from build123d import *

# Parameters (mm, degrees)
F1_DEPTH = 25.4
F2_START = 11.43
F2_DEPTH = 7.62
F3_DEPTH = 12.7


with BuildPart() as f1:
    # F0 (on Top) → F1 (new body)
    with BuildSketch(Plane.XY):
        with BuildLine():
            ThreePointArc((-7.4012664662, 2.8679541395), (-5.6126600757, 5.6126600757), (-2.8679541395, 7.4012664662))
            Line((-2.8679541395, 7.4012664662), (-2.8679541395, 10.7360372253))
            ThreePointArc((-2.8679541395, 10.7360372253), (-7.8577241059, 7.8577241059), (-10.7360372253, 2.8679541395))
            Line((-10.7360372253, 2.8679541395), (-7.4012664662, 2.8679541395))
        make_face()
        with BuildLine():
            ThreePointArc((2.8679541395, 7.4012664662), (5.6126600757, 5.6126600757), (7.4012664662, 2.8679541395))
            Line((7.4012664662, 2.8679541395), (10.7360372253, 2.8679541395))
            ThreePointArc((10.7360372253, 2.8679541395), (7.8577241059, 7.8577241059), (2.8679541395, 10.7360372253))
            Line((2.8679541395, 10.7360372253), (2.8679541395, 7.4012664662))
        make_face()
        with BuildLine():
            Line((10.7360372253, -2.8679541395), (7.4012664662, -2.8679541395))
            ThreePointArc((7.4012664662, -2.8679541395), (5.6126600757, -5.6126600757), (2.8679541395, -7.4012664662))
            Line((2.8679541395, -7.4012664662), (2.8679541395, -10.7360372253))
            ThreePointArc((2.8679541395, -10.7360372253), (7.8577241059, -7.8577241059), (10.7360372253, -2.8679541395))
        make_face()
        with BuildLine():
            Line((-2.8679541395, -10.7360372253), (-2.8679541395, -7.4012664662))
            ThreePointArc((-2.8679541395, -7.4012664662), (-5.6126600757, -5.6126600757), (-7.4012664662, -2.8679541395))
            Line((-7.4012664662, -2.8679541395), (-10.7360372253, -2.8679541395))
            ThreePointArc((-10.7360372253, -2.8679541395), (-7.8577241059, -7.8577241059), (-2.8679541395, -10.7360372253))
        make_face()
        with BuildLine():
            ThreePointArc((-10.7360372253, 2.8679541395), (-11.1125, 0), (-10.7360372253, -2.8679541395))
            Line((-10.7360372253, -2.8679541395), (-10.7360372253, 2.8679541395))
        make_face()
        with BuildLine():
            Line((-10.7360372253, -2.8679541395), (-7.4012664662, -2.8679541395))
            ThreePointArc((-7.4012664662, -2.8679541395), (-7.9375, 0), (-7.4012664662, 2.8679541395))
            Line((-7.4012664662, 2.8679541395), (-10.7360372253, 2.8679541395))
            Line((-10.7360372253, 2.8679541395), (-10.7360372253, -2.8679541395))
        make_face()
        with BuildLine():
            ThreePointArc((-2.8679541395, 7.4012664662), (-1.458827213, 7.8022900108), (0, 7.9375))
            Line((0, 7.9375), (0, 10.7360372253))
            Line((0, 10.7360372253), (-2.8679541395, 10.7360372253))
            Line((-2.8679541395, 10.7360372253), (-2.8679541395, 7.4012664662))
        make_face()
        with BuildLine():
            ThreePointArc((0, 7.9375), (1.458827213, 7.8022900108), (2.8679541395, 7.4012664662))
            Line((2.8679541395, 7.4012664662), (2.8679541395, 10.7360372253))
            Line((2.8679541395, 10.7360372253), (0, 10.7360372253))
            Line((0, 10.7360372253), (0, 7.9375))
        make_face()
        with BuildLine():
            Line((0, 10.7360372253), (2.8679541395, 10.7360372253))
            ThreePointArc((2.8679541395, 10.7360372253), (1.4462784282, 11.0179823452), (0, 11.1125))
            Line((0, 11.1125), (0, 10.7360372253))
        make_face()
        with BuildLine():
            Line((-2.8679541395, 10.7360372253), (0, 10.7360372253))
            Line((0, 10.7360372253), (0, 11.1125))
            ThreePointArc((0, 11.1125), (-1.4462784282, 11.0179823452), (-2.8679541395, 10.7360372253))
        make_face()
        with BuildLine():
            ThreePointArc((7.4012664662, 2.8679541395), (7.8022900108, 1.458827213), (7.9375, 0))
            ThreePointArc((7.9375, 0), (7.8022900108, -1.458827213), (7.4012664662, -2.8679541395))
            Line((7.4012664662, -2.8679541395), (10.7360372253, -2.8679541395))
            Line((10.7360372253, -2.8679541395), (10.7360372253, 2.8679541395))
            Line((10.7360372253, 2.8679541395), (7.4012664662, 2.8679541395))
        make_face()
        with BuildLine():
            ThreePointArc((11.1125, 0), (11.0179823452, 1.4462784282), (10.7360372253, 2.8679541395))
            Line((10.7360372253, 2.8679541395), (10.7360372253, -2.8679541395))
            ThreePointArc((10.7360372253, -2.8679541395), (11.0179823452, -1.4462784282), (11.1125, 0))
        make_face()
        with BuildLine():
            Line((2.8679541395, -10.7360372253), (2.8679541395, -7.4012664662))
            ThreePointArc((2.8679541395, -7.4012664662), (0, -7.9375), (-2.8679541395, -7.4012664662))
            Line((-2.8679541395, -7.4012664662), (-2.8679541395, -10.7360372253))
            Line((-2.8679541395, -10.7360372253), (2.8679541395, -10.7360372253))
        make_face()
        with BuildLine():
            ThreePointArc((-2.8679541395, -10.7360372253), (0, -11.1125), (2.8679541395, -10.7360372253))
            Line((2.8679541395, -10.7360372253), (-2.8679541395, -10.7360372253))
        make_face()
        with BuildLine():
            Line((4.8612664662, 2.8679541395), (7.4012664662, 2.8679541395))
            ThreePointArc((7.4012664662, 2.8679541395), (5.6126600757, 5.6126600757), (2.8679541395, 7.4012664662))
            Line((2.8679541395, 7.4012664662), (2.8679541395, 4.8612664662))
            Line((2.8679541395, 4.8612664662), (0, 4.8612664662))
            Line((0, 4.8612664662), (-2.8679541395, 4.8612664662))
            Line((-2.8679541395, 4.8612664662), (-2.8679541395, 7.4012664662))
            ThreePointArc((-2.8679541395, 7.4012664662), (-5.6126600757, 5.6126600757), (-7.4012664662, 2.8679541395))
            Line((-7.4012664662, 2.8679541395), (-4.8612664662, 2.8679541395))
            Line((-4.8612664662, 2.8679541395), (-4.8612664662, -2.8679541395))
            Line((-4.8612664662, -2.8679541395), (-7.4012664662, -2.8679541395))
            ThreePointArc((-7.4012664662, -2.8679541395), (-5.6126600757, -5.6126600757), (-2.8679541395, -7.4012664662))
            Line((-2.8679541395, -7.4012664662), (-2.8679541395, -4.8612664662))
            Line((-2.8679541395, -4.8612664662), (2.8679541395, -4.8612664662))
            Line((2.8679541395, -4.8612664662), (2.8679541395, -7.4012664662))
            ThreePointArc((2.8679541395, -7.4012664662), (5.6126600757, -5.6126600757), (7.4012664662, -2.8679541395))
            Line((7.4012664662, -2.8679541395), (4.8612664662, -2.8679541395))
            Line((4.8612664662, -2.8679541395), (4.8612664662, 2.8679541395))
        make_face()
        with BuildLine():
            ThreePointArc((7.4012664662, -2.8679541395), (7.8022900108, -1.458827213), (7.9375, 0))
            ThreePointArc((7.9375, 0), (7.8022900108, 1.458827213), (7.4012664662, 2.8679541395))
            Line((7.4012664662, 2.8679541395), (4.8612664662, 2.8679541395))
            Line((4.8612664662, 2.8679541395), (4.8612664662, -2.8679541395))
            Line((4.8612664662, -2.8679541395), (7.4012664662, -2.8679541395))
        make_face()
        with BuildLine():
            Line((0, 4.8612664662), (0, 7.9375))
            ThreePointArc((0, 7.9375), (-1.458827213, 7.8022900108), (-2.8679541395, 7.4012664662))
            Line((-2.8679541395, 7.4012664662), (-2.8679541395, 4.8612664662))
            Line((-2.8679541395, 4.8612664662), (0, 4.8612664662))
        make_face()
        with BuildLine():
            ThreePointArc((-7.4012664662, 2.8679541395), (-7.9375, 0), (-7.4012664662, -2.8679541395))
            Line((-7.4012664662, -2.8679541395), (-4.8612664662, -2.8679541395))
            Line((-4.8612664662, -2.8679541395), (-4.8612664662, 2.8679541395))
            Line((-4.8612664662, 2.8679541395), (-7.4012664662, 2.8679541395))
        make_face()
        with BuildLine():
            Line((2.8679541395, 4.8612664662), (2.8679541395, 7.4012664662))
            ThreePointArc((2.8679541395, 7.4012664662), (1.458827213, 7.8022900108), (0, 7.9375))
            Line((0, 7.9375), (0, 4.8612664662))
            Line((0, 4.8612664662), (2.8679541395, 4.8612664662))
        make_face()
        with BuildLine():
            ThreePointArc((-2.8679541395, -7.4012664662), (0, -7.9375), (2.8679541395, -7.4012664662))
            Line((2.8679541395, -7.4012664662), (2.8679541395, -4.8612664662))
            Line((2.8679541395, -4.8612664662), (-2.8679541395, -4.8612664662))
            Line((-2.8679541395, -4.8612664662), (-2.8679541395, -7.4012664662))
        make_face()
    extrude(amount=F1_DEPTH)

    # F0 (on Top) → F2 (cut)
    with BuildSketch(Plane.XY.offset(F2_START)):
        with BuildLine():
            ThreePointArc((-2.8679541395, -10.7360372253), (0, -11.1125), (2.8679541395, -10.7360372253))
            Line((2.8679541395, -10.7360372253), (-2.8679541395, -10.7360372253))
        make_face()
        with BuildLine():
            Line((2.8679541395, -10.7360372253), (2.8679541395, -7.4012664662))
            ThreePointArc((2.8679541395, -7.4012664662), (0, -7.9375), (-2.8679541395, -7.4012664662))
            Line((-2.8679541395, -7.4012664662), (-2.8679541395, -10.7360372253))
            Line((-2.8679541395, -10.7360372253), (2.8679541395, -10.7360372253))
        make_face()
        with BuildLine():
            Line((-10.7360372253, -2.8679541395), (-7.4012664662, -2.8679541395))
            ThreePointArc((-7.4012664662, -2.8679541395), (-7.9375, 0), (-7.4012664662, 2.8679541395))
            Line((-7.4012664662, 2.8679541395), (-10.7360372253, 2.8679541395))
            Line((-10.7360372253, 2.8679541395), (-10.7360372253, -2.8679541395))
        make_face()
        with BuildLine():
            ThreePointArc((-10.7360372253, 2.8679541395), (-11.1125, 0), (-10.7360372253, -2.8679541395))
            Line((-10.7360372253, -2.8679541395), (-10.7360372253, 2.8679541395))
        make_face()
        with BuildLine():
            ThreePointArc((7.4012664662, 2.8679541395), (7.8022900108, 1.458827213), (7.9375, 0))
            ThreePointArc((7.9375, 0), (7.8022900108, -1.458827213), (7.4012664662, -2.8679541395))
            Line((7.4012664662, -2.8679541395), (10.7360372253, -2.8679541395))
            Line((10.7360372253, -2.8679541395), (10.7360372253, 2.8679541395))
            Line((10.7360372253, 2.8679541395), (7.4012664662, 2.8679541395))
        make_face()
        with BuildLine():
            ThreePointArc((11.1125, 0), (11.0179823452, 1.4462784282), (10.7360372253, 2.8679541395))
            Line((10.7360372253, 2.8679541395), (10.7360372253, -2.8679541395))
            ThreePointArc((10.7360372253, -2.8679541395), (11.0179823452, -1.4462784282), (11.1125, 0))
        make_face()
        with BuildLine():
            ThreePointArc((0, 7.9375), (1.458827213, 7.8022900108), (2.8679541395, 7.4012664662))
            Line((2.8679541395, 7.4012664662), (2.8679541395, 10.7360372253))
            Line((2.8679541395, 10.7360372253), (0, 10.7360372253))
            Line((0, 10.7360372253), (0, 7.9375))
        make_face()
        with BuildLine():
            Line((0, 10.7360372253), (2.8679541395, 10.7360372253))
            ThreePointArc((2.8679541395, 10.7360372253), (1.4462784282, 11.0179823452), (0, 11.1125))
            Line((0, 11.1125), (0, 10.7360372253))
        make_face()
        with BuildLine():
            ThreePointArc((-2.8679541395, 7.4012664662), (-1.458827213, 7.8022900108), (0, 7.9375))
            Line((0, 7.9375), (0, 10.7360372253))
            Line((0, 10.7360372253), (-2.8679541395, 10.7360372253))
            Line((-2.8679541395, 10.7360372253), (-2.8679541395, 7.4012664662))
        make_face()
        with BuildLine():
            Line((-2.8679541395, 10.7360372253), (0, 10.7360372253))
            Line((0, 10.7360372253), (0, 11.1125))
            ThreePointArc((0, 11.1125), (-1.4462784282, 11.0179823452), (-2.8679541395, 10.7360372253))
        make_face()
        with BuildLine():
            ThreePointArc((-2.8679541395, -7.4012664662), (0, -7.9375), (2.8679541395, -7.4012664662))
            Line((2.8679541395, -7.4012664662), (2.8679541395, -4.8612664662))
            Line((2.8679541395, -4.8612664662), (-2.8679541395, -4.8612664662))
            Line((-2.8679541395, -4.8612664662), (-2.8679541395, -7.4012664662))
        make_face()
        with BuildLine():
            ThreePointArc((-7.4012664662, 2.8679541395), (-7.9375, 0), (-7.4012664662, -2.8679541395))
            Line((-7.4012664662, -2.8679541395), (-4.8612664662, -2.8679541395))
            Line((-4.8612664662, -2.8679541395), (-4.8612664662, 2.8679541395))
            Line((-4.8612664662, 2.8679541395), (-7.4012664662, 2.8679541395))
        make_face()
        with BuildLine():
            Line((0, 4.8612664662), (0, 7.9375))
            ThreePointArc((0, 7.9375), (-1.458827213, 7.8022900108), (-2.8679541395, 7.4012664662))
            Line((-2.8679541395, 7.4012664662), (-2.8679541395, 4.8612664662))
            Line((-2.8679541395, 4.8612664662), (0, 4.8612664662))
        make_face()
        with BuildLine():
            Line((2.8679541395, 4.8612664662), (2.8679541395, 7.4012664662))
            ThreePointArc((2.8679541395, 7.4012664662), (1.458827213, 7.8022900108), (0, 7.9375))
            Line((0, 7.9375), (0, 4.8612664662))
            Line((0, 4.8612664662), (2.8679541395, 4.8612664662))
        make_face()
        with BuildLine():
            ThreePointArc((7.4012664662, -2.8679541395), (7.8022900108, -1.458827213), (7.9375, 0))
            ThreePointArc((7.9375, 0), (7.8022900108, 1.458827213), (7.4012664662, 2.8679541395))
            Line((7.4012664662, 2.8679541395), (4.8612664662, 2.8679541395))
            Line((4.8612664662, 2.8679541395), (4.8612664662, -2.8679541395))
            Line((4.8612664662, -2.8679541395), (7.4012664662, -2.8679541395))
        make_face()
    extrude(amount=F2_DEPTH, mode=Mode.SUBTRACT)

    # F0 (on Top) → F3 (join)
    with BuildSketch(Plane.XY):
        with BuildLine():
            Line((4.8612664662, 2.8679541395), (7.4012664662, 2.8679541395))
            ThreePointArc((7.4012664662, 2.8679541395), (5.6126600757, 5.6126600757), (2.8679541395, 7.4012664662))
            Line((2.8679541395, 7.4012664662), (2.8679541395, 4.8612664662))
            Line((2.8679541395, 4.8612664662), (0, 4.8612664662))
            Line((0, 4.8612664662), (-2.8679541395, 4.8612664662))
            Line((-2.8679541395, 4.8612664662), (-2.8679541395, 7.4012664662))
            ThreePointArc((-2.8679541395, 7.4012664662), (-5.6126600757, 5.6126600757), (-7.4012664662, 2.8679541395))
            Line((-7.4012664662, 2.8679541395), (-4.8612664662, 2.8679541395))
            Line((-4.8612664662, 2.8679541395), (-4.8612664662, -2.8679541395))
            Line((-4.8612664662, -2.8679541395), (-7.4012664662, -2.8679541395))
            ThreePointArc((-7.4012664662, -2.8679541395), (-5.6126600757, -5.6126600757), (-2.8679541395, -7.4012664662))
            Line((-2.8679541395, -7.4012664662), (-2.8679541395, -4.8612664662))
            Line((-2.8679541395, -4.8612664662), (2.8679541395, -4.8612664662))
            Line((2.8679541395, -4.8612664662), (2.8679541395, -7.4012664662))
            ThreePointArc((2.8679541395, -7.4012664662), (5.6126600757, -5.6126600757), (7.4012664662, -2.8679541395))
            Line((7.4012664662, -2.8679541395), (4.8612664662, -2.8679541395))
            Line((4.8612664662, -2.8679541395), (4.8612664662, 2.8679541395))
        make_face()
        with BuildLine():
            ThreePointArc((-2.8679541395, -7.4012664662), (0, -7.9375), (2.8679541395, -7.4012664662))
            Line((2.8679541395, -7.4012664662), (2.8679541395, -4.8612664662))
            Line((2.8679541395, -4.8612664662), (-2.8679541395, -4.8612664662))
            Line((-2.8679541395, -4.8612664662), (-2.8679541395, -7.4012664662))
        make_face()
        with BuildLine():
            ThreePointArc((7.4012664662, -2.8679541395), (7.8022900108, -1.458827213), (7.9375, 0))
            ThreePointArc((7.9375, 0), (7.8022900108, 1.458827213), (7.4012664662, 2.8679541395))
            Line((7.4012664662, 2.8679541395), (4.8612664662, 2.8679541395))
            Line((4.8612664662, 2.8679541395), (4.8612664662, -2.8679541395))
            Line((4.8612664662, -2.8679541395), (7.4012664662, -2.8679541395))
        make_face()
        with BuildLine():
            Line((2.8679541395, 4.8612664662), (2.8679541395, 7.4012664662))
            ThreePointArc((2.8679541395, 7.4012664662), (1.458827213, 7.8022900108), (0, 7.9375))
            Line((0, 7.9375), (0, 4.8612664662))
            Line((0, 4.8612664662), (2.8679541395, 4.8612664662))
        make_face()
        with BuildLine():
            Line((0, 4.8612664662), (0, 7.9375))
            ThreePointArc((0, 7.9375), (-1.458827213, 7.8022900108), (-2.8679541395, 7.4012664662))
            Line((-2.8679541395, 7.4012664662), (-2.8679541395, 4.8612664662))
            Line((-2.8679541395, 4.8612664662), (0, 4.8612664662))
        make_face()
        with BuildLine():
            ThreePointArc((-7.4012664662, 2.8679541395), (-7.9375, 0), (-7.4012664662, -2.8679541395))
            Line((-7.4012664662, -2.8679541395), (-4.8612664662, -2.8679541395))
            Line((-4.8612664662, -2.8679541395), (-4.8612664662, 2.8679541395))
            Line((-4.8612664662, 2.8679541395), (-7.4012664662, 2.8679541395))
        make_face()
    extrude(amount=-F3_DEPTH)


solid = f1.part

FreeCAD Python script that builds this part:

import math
import FreeCAD as App
import Part
import Sketcher
Q = App.Units.Quantity

doc = App.newDocument("Part")
params = doc.addObject("Spreadsheet::Sheet", "Params")
for row, (alias, value) in enumerate([
    ("sketch1_radius", "0.4375 in"),
    ("pad1_length", "1 in"),
    ("sketch2_radius", "0.4375 in"),
    ("pocket1_length", "0.3 in"),
    ("sketch3_radius", "0.3125 in"),
    ("pad2_length", "0.5 in"),
], start=1):
    params.set(f"A{row}", alias)
    params.set(f"B{row}", "=" + value)
    params.setAlias(f"B{row}", alias)

body = doc.addObject("PartDesign::Body", "Body")

# Sketch on XY plane
sketch1 = body.newObject("Sketcher::SketchObject", "Sketch")
sketch1.AttachmentSupport = (doc.getObject("XY_Plane"), [""])
sketch1.MapMode = "FlatFace"
sketch1.addGeometry([
    Part.ArcOfCircle(Part.Circle(App.Vector(0, 0, 0), App.Vector(0, 0, 1), 11.1), math.radians(-75), math.radians(-15)),  # 0
    Part.ArcOfCircle(Part.Circle(App.Vector(0, 0, 0), App.Vector(0, 0, 1), 11.1), math.radians(-14.96), math.radians(0)),  # 1
    Part.ArcOfCircle(Part.Circle(App.Vector(0, 0, 0), App.Vector(0, 0, 1), 11.1), math.radians(0), math.radians(14.96)),  # 2
    Part.ArcOfCircle(Part.Circle(App.Vector(0, 0, 0), App.Vector(0, 0, 1), 11.1), math.radians(15), math.radians(75)),  # 3
    Part.ArcOfCircle(Part.Circle(App.Vector(0, 0, 0), App.Vector(0, 0, 1), 11.1), math.radians(75.04), math.radians(90)),  # 4
    Part.ArcOfCircle(Part.Circle(App.Vector(0, 0, 0), App.Vector(0, 0, 1), 11.1), math.radians(90), math.radians(104.96)),  # 5
    Part.ArcOfCircle(Part.Circle(App.Vector(0, 0, 0), App.Vector(0, 0, 1), 11.1), math.radians(105), math.radians(165)),  # 6
    Part.ArcOfCircle(Part.Circle(App.Vector(0, 0, 0), App.Vector(0, 0, 1), 11.1), math.radians(165), math.radians(195)),  # 7
    Part.ArcOfCircle(Part.Circle(App.Vector(0, 0, 0), App.Vector(0, 0, 1), 11.1), math.radians(-165), math.radians(-105)),  # 8
    Part.ArcOfCircle(Part.Circle(App.Vector(0, 0, 0), App.Vector(0, 0, 1), 11.1), math.radians(-105), math.radians(-75)),  # 9
], False)
sketch1.addConstraint([
    Sketcher.Constraint("Tangent", 0, 2, 1, 1),
    Sketcher.Constraint("Tangent", 1, 2, 2, 1),
    Sketcher.Constraint("Tangent", 2, 2, 3, 1),
    Sketcher.Constraint("Tangent", 3, 2, 4, 1),
    Sketcher.Constraint("Tangent", 4, 2, 5, 1),
    Sketcher.Constraint("Tangent", 5, 2, 6, 1),
    Sketcher.Constraint("Tangent", 6, 2, 7, 1),
    Sketcher.Constraint("Tangent", 7, 2, 8, 1),
    Sketcher.Constraint("Tangent", 8, 2, 9, 1),
    Sketcher.Constraint("Tangent", 9, 2, 0, 1),
    Sketcher.Constraint("Coincident", 0, 3, -1, 1),
    Sketcher.Constraint("Coincident", 2, 3, -1, 1),
    Sketcher.Constraint("Coincident", 4, 3, -1, 1),
    Sketcher.Constraint("Coincident", 6, 3, -1, 1),
    Sketcher.Constraint("Equal", 6, 7),
    Sketcher.Constraint("PointOnObject", 1, 2, -1),
    Sketcher.Constraint("PointOnObject", 4, 2, -2),
    Sketcher.Constraint("Horizontal", 3, 2, 5, 2),
    Sketcher.Constraint("Horizontal", 2, 2, 6, 2),
    Sketcher.Constraint("Horizontal", 0, 2, 7, 2),
    Sketcher.Constraint("Horizontal", 8, 2, 9, 2),
    Sketcher.Constraint("Vertical", 0, 2, 2, 2),
    Sketcher.Constraint("Vertical", 5, 2, 8, 2),
    Sketcher.Constraint("Radius", 0, Q("0.4375 in")),
    Sketcher.Constraint("DistanceY", 0, 2, 2, 2, Q("5.735908 mm")),
    Sketcher.Constraint("DistanceX", 5, 2, 3, 2, Q("5.735908 mm")),
])
sketch1.setExpression("Constraints[23]", "Params.sketch1_radius")
pad1 = body.newObject("PartDesign::Pad", "Pad")
pad1.Profile = sketch1
pad1.setExpression("Length", "Params.pad1_length")

# Sketch on XY plane
sketch2 = body.newObject("Sketcher::SketchObject", "Sketch001")
sketch2.AttachmentSupport = (doc.getObject("XY_Plane"), [""])
sketch2.MapMode = "FlatFace"
sketch2.AttachmentOffset = App.Placement(App.Vector(0, 0, 0.45 * 25.4), App.Rotation())
sketch2.addGeometry([
    Part.ArcOfCircle(Part.Circle(App.Vector(0, 0, 0), App.Vector(0, 0, 1), 11.1), math.radians(-105), math.radians(-75)),  # 0
    Part.LineSegment(App.Vector(2.9, -10.7, 0), App.Vector(2.9, -4.9, 0)),  # 1
    Part.LineSegment(App.Vector(2.9, -4.9, 0), App.Vector(-2.9, -4.9, 0)),  # 2
    Part.LineSegment(App.Vector(-2.9, -4.9, 0), App.Vector(-2.9, -10.7, 0)),  # 3
    Part.LineSegment(App.Vector(-10.7, -2.9, 0), App.Vector(-4.9, -2.9, 0)),  # 4
    Part.LineSegment(App.Vector(-4.9, -2.9, 0), App.Vector(-4.9, 2.9, 0)),  # 5
    Part.LineSegment(App.Vector(-4.9, 2.9, 0), App.Vector(-10.7, 2.9, 0)),  # 6
    Part.ArcOfCircle(Part.Circle(App.Vector(0, 0, 0), App.Vector(0, 0, 1), 11.1), math.radians(165), math.radians(195)),  # 7
    Part.ArcOfCircle(Part.Circle(App.Vector(0, 0, 0), App.Vector(0, 0, 1), 11.1), math.radians(-14.96), math.radians(0)),  # 8
    Part.ArcOfCircle(Part.Circle(App.Vector(0, 0, 0), App.Vector(0, 0, 1), 11.1), math.radians(0), math.radians(14.96)),  # 9
    Part.LineSegment(App.Vector(10.7, 2.9, 0), App.Vector(4.9, 2.9, 0)),  # 10
    Part.LineSegment(App.Vector(4.9, 2.9, 0), App.Vector(4.9, -2.9, 0)),  # 11
    Part.LineSegment(App.Vector(4.9, -2.9, 0), App.Vector(10.7, -2.9, 0)),  # 12
    Part.ArcOfCircle(Part.Circle(App.Vector(0, 0, 0), App.Vector(0, 0, 1), 11.1), math.radians(75.04), math.radians(90)),  # 13
    Part.ArcOfCircle(Part.Circle(App.Vector(0, 0, 0), App.Vector(0, 0, 1), 11.1), math.radians(90), math.radians(104.96)),  # 14
    Part.LineSegment(App.Vector(-2.9, 10.7, 0), App.Vector(-2.9, 4.9, 0)),  # 15
    Part.LineSegment(App.Vector(-2.9, 4.9, 0), App.Vector(2.9, 4.9, 0)),  # 16
    Part.LineSegment(App.Vector(2.9, 4.9, 0), App.Vector(2.9, 10.7, 0)),  # 17
], False)
sketch2.addConstraint([
    Sketcher.Constraint("Coincident", 0, 2, 1, 1),
    Sketcher.Constraint("Coincident", 1, 2, 2, 1),
    Sketcher.Constraint("Coincident", 2, 2, 3, 1),
    Sketcher.Constraint("Coincident", 3, 2, 0, 1),
    Sketcher.Constraint("Coincident", 4, 2, 5, 1),
    Sketcher.Constraint("Coincident", 5, 2, 6, 1),
    Sketcher.Constraint("Coincident", 6, 2, 7, 1),
    Sketcher.Constraint("Coincident", 7, 2, 4, 1),
    Sketcher.Constraint("Tangent", 8, 2, 9, 1),
    Sketcher.Constraint("Coincident", 9, 2, 10, 1),
    Sketcher.Constraint("Coincident", 10, 2, 11, 1),
    Sketcher.Constraint("Coincident", 11, 2, 12, 1),
    Sketcher.Constraint("Coincident", 12, 2, 8, 1),
    Sketcher.Constraint("Tangent", 13, 2, 14, 1),
    Sketcher.Constraint("Coincident", 14, 2, 15, 1),
    Sketcher.Constraint("Coincident", 15, 2, 16, 1),
    Sketcher.Constraint("Coincident", 16, 2, 17, 1),
    Sketcher.Constraint("Coincident", 17, 2, 13, 1),
    Sketcher.Constraint("Vertical", 1),
    Sketcher.Constraint("Horizontal", 2),
    Sketcher.Constraint("Vertical", 3),
    Sketcher.Constraint("Horizontal", 4),
    Sketcher.Constraint("Vertical", 5),
    Sketcher.Constraint("Horizontal", 6),
    Sketcher.Constraint("Horizontal", 10),
    Sketcher.Constraint("Vertical", 11),
    Sketcher.Constraint("Horizontal", 12),
    Sketcher.Constraint("Vertical", 15),
    Sketcher.Constraint("Horizontal", 16),
    Sketcher.Constraint("Vertical", 17),
    Sketcher.Constraint("Coincident", 0, 3, -1, 1),
    Sketcher.Constraint("Coincident", 7, 3, -1, 1),
    Sketcher.Constraint("Coincident", 8, 3, -1, 1),
    Sketcher.Constraint("Coincident", 13, 3, -1, 1),
    Sketcher.Constraint("Equal", 0, 7),
    Sketcher.Constraint("Equal", 7, 8),
    Sketcher.Constraint("Equal", 8, 9),
    Sketcher.Constraint("Equal", 9, 13),
    Sketcher.Constraint("Equal", 13, 14),
    Sketcher.Constraint("Symmetric", 4, 2, 10, 2, -1, 1),
    Sketcher.Constraint("Symmetric", 1, 2, 15, 2, -1, 1),
    Sketcher.Constraint("PointOnObject", 8, 2, -1),
    Sketcher.Constraint("PointOnObject", 13, 2, -2),
    Sketcher.Constraint("Horizontal", 0, 2, 3, 2),
    Sketcher.Constraint("Horizontal", 6, 2, 9, 2),
    Sketcher.Constraint("Horizontal", 7, 2, 11, 2),
    Sketcher.Constraint("Horizontal", 14, 2, 17, 2),
    Sketcher.Constraint("Equal", 12, 1),
    Sketcher.Constraint("Equal", 16, 5),
    Sketcher.Constraint("Radius", 0, Q("0.4375 in")),
    Sketcher.Constraint("DistanceY", 2, 2, 6, 2, Q("0.3043 in")),
    Sketcher.Constraint("DistanceX", 2, 2, 2, 1, Q("5.735908 mm")),
])
sketch2.setExpression("Constraints[49]", "Params.sketch2_radius")
pocket1 = body.newObject("PartDesign::Pocket", "Pocket")
pocket1.Profile = sketch2
pocket1.setExpression("Length", "Params.pocket1_length")
pocket1.Reversed = True

# Sketch on XY plane
sketch3 = body.newObject("Sketcher::SketchObject", "Sketch002")
sketch3.AttachmentSupport = (doc.getObject("XY_Plane"), [""])
sketch3.MapMode = "FlatFace"
sketch3.addGeometry([
    Part.ArcOfCircle(Part.Circle(App.Vector(0, 0, 0), App.Vector(0, 0, 1), 7.9), math.radians(21), math.radians(69)),  # 0
    Part.ArcOfCircle(Part.Circle(App.Vector(0, 0, 0), App.Vector(0, 0, 1), 7.9), math.radians(69), math.radians(90)),  # 1
    Part.ArcOfCircle(Part.Circle(App.Vector(0, 0, 0), App.Vector(0, 0, 1), 7.9), math.radians(90), math.radians(111)),  # 2
    Part.ArcOfCircle(Part.Circle(App.Vector(0, 0, 0), App.Vector(0, 0, 1), 7.9), math.radians(111), math.radians(159)),  # 3
    Part.ArcOfCircle(Part.Circle(App.Vector(0, 0, 0), App.Vector(0, 0, 1), 7.9), math.radians(159), math.radians(201)),  # 4
    Part.ArcOfCircle(Part.Circle(App.Vector(0, 0, 0), App.Vector(0, 0, 1), 7.9), math.radians(-159), math.radians(-111)),  # 5
    Part.ArcOfCircle(Part.Circle(App.Vector(0, 0, 0), App.Vector(0, 0, 1), 7.9), math.radians(-111), math.radians(-69)),  # 6
    Part.ArcOfCircle(Part.Circle(App.Vector(0, 0, 0), App.Vector(0, 0, 1), 7.9), math.radians(-69), math.radians(-21)),  # 7
    Part.ArcOfCircle(Part.Circle(App.Vector(0, 0, 0), App.Vector(0, 0, 1), 7.9), math.radians(-21), math.radians(0)),  # 8
    Part.ArcOfCircle(Part.Circle(App.Vector(0, 0, 0), App.Vector(0, 0, 1), 7.9), math.radians(0), math.radians(21)),  # 9
], False)
sketch3.addConstraint([
    Sketcher.Constraint("Tangent", 0, 2, 1, 1),
    Sketcher.Constraint("Tangent", 1, 2, 2, 1),
    Sketcher.Constraint("Tangent", 2, 2, 3, 1),
    Sketcher.Constraint("Tangent", 3, 2, 4, 1),
    Sketcher.Constraint("Tangent", 4, 2, 5, 1),
    Sketcher.Constraint("Tangent", 5, 2, 6, 1),
    Sketcher.Constraint("Tangent", 6, 2, 7, 1),
    Sketcher.Constraint("Tangent", 7, 2, 8, 1),
    Sketcher.Constraint("Tangent", 8, 2, 9, 1),
    Sketcher.Constraint("Tangent", 9, 2, 0, 1),
    Sketcher.Constraint("Coincident", 0, 3, -1, 1),
    Sketcher.Constraint("Coincident", 2, 3, -1, 1),
    Sketcher.Constraint("Coincident", 4, 3, -1, 1),
    Sketcher.Constraint("Coincident", 6, 3, -1, 1),
    Sketcher.Constraint("Equal", 6, 7),
    Sketcher.Constraint("PointOnObject", 1, 2, -2),
    Sketcher.Constraint("PointOnObject", 8, 2, -1),
    Sketcher.Constraint("Horizontal", 0, 2, 2, 2),
    Sketcher.Constraint("Horizontal", 5, 2, 6, 2),
    Sketcher.Constraint("Horizontal", 4, 2, 7, 2),
    Sketcher.Constraint("Horizontal", 3, 2, 9, 2),
    Sketcher.Constraint("Vertical", 3, 2, 4, 2),
    Sketcher.Constraint("Vertical", 2, 2, 5, 2),
    Sketcher.Constraint("Radius", 0, Q("0.3125 in")),
    Sketcher.Constraint("DistanceX", 2, 2, 0, 2, Q("5.735908 mm")),
    Sketcher.Constraint("DistanceY", 4, 2, 3, 2, Q("5.735908 mm")),
])
sketch3.setExpression("Constraints[23]", "Params.sketch3_radius")
pad2 = body.newObject("PartDesign::Pad", "Pad001")
pad2.Profile = sketch3
pad2.setExpression("Length", "Params.pad2_length")
pad2.Reversed = True

doc.recompute()
